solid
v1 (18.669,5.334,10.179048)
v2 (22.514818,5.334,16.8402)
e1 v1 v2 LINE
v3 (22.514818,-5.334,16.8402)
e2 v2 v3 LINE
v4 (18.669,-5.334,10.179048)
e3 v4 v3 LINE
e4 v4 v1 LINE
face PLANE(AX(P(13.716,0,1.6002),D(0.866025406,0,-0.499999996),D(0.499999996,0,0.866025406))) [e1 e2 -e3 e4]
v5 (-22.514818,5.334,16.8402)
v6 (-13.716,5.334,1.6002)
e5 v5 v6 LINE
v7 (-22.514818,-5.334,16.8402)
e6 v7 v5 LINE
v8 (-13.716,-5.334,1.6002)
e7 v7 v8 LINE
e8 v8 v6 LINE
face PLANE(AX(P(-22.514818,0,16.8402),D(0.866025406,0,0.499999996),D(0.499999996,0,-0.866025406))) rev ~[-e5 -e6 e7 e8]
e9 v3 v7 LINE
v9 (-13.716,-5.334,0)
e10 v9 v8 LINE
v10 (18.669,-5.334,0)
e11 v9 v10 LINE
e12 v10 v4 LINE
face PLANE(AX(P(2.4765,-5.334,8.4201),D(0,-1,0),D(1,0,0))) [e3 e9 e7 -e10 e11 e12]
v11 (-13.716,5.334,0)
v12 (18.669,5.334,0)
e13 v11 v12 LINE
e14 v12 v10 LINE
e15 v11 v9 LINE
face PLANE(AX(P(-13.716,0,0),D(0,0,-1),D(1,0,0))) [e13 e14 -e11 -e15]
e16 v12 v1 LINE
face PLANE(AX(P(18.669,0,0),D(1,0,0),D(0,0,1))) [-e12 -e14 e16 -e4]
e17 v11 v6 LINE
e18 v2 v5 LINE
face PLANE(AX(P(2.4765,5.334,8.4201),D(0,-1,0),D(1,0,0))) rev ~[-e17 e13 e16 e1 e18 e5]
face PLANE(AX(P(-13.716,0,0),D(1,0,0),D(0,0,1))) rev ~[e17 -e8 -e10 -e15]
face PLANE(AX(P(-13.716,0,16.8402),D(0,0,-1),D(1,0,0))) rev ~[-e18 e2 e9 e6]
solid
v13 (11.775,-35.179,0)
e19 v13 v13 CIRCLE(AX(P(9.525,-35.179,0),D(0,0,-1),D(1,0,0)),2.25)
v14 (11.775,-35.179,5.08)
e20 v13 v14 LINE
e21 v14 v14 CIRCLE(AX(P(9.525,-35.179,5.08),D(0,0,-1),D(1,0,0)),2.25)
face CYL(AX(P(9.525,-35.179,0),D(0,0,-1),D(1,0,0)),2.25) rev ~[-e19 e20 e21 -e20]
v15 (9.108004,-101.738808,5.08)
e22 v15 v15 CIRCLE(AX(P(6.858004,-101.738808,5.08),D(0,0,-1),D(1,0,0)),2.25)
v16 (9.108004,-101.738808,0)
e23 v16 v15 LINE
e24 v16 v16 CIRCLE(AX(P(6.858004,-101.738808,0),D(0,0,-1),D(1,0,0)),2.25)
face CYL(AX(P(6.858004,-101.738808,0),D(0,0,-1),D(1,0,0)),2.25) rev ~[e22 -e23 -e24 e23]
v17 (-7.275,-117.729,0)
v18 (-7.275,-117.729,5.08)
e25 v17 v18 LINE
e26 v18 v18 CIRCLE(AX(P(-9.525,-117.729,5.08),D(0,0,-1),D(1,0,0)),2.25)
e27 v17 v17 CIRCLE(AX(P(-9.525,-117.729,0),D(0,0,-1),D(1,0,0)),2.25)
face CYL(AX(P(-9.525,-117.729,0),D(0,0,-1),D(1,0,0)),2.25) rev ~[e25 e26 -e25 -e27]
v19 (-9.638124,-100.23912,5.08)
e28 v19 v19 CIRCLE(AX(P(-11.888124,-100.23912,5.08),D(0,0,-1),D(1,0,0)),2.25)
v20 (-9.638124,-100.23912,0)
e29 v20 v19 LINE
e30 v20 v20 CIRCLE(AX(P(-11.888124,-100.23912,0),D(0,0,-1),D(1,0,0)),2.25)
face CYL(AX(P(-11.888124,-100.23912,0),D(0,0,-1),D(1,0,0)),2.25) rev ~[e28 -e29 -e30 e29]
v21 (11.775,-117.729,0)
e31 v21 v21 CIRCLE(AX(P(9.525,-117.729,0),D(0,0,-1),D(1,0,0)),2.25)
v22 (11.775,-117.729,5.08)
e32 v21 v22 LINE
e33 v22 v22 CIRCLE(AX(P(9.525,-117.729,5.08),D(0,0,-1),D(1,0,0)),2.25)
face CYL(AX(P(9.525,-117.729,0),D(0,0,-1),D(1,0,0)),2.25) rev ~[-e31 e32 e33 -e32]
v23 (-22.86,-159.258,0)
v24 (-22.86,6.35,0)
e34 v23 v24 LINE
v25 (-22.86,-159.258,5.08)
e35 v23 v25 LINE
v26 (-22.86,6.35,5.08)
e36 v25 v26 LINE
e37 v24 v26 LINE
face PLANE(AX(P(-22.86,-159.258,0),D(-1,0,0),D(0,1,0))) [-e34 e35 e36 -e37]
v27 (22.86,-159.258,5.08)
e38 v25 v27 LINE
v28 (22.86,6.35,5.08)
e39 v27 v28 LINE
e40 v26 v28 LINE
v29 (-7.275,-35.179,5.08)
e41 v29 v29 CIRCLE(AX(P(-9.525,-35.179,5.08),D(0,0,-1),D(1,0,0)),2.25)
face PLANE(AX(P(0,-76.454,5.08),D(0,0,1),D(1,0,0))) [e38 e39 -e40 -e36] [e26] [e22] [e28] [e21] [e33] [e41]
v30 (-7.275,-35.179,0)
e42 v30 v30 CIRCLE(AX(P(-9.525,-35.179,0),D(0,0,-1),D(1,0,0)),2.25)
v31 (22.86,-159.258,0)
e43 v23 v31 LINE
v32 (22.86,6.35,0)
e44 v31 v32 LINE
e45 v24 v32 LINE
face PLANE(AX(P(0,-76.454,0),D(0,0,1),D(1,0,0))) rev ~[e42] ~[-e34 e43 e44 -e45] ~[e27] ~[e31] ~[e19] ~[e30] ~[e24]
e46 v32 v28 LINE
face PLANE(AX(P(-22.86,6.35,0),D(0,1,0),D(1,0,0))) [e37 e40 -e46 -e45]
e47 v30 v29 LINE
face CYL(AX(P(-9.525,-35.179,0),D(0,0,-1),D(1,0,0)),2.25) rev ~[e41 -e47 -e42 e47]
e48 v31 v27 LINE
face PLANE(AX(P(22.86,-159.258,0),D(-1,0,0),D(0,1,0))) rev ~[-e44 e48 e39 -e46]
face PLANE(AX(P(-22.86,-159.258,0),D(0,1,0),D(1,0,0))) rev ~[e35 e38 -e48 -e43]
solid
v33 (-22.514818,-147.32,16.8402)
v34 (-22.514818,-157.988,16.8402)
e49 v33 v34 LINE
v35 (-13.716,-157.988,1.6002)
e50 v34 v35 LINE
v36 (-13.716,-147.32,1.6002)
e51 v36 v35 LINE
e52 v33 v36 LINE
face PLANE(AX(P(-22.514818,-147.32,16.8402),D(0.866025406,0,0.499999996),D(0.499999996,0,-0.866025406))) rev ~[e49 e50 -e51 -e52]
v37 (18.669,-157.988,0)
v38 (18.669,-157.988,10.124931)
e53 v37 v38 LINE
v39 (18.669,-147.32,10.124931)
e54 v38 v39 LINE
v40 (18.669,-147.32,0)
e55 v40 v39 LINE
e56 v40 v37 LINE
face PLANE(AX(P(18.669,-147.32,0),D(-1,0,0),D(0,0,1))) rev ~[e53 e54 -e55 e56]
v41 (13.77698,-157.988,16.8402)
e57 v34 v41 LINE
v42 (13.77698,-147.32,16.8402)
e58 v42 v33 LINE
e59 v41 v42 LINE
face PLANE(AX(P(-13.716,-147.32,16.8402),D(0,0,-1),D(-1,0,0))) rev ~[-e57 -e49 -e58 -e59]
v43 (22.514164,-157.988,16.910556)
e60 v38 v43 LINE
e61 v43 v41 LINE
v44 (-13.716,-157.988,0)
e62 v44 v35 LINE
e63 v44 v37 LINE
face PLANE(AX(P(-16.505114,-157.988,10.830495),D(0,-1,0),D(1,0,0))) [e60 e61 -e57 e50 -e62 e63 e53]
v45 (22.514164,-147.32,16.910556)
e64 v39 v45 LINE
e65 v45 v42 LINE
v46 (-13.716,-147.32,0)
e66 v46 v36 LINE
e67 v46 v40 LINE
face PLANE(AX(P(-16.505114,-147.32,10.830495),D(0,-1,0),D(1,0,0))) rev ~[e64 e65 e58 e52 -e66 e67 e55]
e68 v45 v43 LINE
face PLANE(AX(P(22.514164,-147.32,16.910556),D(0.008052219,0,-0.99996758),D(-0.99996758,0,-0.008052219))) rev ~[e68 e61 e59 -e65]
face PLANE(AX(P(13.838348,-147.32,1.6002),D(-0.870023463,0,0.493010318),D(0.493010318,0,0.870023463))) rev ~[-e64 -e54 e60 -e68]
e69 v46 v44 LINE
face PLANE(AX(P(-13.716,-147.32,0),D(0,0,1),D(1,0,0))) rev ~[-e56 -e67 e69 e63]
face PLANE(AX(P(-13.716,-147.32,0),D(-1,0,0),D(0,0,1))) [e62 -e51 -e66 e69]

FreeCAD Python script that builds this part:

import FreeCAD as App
import Part
import Sketcher
from FreeCAD import Vector
Q = App.Units.Quantity

doc = App.newDocument("Part")
body = doc.addObject("PartDesign::Body", "Body")

# Sketch on XY plane
sketch1 = body.newObject("Sketcher::SketchObject", "Sketch")
sketch1.AttachmentSupport = (doc.getObject("XY_Plane"), [""])
sketch1.MapMode = "FlatFace"
sketch1.addGeometry([
    Part.LineSegment(Vector(-23, 6, 0), Vector(-23, -159, 0)),
    Part.LineSegment(Vector(-23, -159, 0), Vector(23, -159, 0)),
    Part.LineSegment(Vector(23, -159, 0), Vector(23, 6, 0)),
    Part.LineSegment(Vector(23, 6, 0), Vector(-23, 6, 0)),
], False)
sketch1.addConstraint([
    Sketcher.Constraint("Coincident", 0, 2, 1, 1),
    Sketcher.Constraint("Coincident", 1, 2, 2, 1),
    Sketcher.Constraint("Coincident", 2, 2, 3, 1),
    Sketcher.Constraint("Coincident", 3, 2, 0, 1),
    Sketcher.Constraint("Vertical", 0),
    Sketcher.Constraint("Horizontal", 1),
    Sketcher.Constraint("Vertical", 2),
    Sketcher.Constraint("Horizontal", 3),
    Sketcher.Constraint("DistanceX", 1, 1, 1, 2, Q("1.8 in")),
    Sketcher.Constraint("DistanceY", 0, 2, 0, 1, Q("6.52 in")),
    Sketcher.Constraint("DistanceX", 0, 2, -1, 1, Q("0.9 in")),
    Sketcher.Constraint("DistanceY", 0, 2, -1, 1, Q("6.27 in")),
])
pad1 = body.newObject("PartDesign::Pad", "Pad")
pad1.Profile = sketch1
pad1.Length = Q("0.2 in")

# Sketch on XY plane
sketch2 = body.newObject("Sketcher::SketchObject", "Sketch001")
sketch2.AttachmentSupport = (doc.getObject("XY_Plane"), [""])
sketch2.MapMode = "FlatFace"
sketch2.addGeometry([
    Part.Circle(Vector(-9.5, -117.7, 0), Vector(0, 0, 1), 2.2),
    Part.Circle(Vector(-9.5, -35.2, 0), Vector(0, 0, 1), 2.2),
    Part.Circle(Vector(9.5, -117.7, 0), Vector(0, 0, 1), 2.2),
    Part.Circle(Vector(9.5, -35.2, 0), Vector(0, 0, 1), 2.2),
], False)
sketch2.addConstraint([
    Sketcher.Constraint("Equal", 0, 1),
    Sketcher.Constraint("Equal", 1, 2),
    Sketcher.Constraint("Equal", 2, 3),
    Sketcher.Constraint("Symmetric", 0, 3, 2, 3, -2),
    Sketcher.Constraint("Symmetric", 1, 3, 3, 3, -2),
    Sketcher.Constraint("Vertical", 0, 3, 1, 3),
    Sketcher.Constraint("Diameter", 0, 4.5),
    Sketcher.Constraint("DistanceY", 0, 3, 1, 3, Q("3.25 in")),
    Sketcher.Constraint("DistanceX", 0, 3, 2, 3, Q("0.75 in")),
    Sketcher.Constraint("DistanceY", 0, 3, -1, 1, Q("4.635 in")),
])
pocket1 = body.newObject("PartDesign::Pocket", "Pocket")
pocket1.Profile = sketch2
pocket1.Length = Q("0.984 in")
pocket1.Reversed = True

# Sketch on XY plane
sketch3 = body.newObject("Sketcher::SketchObject", "Sketch002")
sketch3.AttachmentSupport = (doc.getObject("XY_Plane"), [""])
sketch3.MapMode = "FlatFace"
sketch3.addGeometry([
    Part.Circle(Vector(-11.9, -100.2, 0), Vector(0, 0, 1), 2.2),
    Part.Circle(Vector(6.9, -101.7, 0), Vector(0, 0, 1), 2.2),
], False)
sketch3.addConstraint([
    Sketcher.Constraint("Equal", 0, 1),
    Sketcher.Constraint("Diameter", 0, 4.5),
    Sketcher.Constraint("DistanceX", -1, 1, 1, 3, Q("0.2700002 in")),
    Sketcher.Constraint("DistanceY", 0, 3, -1, 1, 100.23912),
    Sketcher.Constraint("DistanceY", 1, 3, -1, 1, 101.738808),
    Sketcher.Constraint("DistanceX", 0, 3, -1, 1, 11.888124),
])
pocket2 = body.newObject("PartDesign::Pocket", "Pocket001")
pocket2.Profile = sketch3
pocket2.Length = Q("0.984 in")
pocket2.Reversed = True
body2 = doc.addObject("PartDesign::Body", "Body001")

# Sketch on XZ plane
sketch4 = body2.newObject("Sketcher::SketchObject", "Sketch003")
sketch4.AttachmentSupport = (doc.getObject("XZ_Plane001"), [""])
sketch4.MapMode = "FlatFace"
sketch4.addGeometry([
    Part.LineSegment(Vector(-14, 17, 0), Vector(-14, 0, 0)),
    Part.LineSegment(Vector(-14, 0, 0), Vector(19, 0, 0)),
    Part.LineSegment(Vector(19, 0, 0), Vector(19, 17, 0)),
    Part.LineSegment(Vector(19, 17, 0), Vector(-14, 17, 0)),
], False)
sketch4.addConstraint([
    Sketcher.Constraint("Coincident", 0, 2, 1, 1),
    Sketcher.Constraint("Coincident", 1, 2, 2, 1),
    Sketcher.Constraint("Coincident", 2, 2, 3, 1),
    Sketcher.Constraint("Coincident", 3, 2, 0, 1),
    Sketcher.Constraint("Vertical", 0),
    Sketcher.Constraint("Horizontal", 1),
    Sketcher.Constraint("Vertical", 2),
    Sketcher.Constraint("Horizontal", 3),
    Sketcher.Constraint("PointOnObject", 0, 2, -1),
    Sketcher.Constraint("DistanceX", 1, 1, 1, 2, Q("1.275 in")),
    Sketcher.Constraint("DistanceY", 0, 2, 0, 1, Q("0.663 in")),
    Sketcher.Constraint("DistanceX", 0, 2, -1, 1, Q("0.54 in")),
])
pad2 = body2.newObject("PartDesign::Pad", "Pad001")
pad2.Profile = sketch4
pad2.Length = Q("0.42 in")
pad2.Midplane = True

# Sketch on XZ plane
sketch5 = body2.newObject("Sketcher::SketchObject", "Sketch004")
sketch5.AttachmentSupport = (doc.getObject("XZ_Plane001"), [""])
sketch5.MapMode = "FlatFace"
sketch5.addGeometry([
    Part.LineSegment(Vector(-14, 2, 0), Vector(-14, 17, 0)),  # 0
    Part.LineSegment(Vector(-14, 17, 0), Vector(-23, 17, 0)),  # 1
    Part.LineSegment(Vector(-23, 17, 0), Vector(-14, 2, 0)),  # 2
    Part.LineSegment(Vector(14, 2, 0), Vector(23, 17, 0)),  # 3
    Part.LineSegment(Vector(23, 17, 0), Vector(14, 17, 0)),  # 4
    Part.LineSegment(Vector(14, 17, 0), Vector(14, 2, 0)),  # 5
], False)
sketch5.addConstraint([
    Sketcher.Constraint("Coincident", 0, 2, 1, 1),
    Sketcher.Constraint("Coincident", 1, 2, 2, 1),
    Sketcher.Constraint("Coincident", 2, 2, 0, 1),
    Sketcher.Constraint("Coincident", 3, 2, 4, 1),
    Sketcher.Constraint("Coincident", 4, 2, 5, 1),
    Sketcher.Constraint("Coincident", 5, 2, 3, 1),
    Sketcher.Constraint("Vertical", 0),
    Sketcher.Constraint("Horizontal", 1),
    Sketcher.Constraint("Horizontal", 4),
    Sketcher.Constraint("Vertical", 5),
    Sketcher.Constraint("Symmetric", 1, 2, 3, 2, -2),
    Sketcher.Constraint("Symmetric", 2, 2, 5, 2, -2),
    Sketcher.Constraint("DistanceY", 0, 1, 0, 2, Q("0.6 in")),
    Sketcher.Constraint("Angle", 2, Q("-60 deg")),
    Sketcher.Constraint("DistanceX", 0, 2, -1, 1, Q("0.54 in")),
    Sketcher.Constraint("DistanceY", -1, 1, 0, 2, Q("0.663 in")),
])
pad3 = body2.newObject("PartDesign::Pad", "Pad002")
pad3.Profile = sketch5
pad3.Length = Q("0.42 in")
pad3.Midplane = True
body3 = doc.addObject("PartDesign::Body", "Body002")

# Sketch on XZ plane
sketch6 = body3.newObject("Sketcher::SketchObject", "Sketch005")
sketch6.AttachmentSupport = (doc.getObject("XZ_Plane002"), [""])
sketch6.MapMode = "FlatFace"
sketch6.AttachmentOffset = App.Placement(Vector(0, 0, 5.8 * 25.4), App.Rotation())
sketch6.addGeometry([
    Part.LineSegment(Vector(-14, 17, 0), Vector(-14, 0, 0)),
    Part.LineSegment(Vector(-14, 0, 0), Vector(19, 0, 0)),
    Part.LineSegment(Vector(19, 0, 0), Vector(19, 17, 0)),
    Part.LineSegment(Vector(19, 17, 0), Vector(-14, 17, 0)),
], False)
sketch6.addConstraint([
    Sketcher.Constraint("Coincident", 0, 2, 1, 1),
    Sketcher.Constraint("Coincident", 1, 2, 2, 1),
    Sketcher.Constraint("Coincident", 2, 2, 3, 1),
    Sketcher.Constraint("Coincident", 3, 2, 0, 1),
    Sketcher.Constraint("Vertical", 0),
    Sketcher.Constraint("Horizontal", 1),
    Sketcher.Constraint("Vertical", 2),
    Sketcher.Constraint("Horizontal", 3),
    Sketcher.Constraint("PointOnObject", 0, 2, -1),
    Sketcher.Constraint("DistanceX", 1, 1, 1, 2, Q("1.275 in")),
    Sketcher.Constraint("DistanceY", 0, 2, 0, 1, Q("0.663 in")),
    Sketcher.Constraint("DistanceX", 0, 2, -1, 1, Q("0.54 in")),
])
pad4 = body3.newObject("PartDesign::Pad", "Pad003")
pad4.Profile = sketch6
pad4.Length = Q("0.42 in")

# Sketch on XZ plane
sketch7 = body3.newObject("Sketcher::SketchObject", "Sketch006")
sketch7.AttachmentSupport = (doc.getObject("XZ_Plane002"), [""])
sketch7.MapMode = "FlatFace"
sketch7.AttachmentOffset = App.Placement(Vector(0, 0, 5.8 * 25.4), App.Rotation())
sketch7.addGeometry([
    Part.LineSegment(Vector(-14, 2, 0), Vector(-14, 17, 0)),  # 0
    Part.LineSegment(Vector(-14, 17, 0), Vector(-23, 17, 0)),  # 1
    Part.LineSegment(Vector(-23, 17, 0), Vector(-14, 2, 0)),  # 2
    Part.LineSegment(Vector(14, 2, 0), Vector(23, 17, 0)),  # 3
    Part.LineSegment(Vector(23, 17, 0), Vector(14, 17, 0)),  # 4
    Part.LineSegment(Vector(14, 17, 0), Vector(14, 2, 0)),  # 5
], False)
sketch7.addConstraint([
    Sketcher.Constraint("Coincident", 0, 2, 1, 1),
    Sketcher.Constraint("Coincident", 1, 2, 2, 1),
    Sketcher.Constraint("Coincident", 2, 2, 0, 1),
    Sketcher.Constraint("Coincident", 3, 2, 4, 1),
    Sketcher.Constraint("Coincident", 4, 2, 5, 1),
    Sketcher.Constraint("Coincident", 5, 2, 3, 1),
    Sketcher.Constraint("Vertical", 0),
    Sketcher.Constraint("Horizontal", 1),
    Sketcher.Constraint("Perpendicular", 4, 5),
    Sketcher.Constraint("Horizontal", 2, 2, 5, 2),
    Sketcher.Constraint("Equal", 2, 3),
    Sketcher.Constraint("DistanceY", 0, 1, 0, 2, Q("0.6 in")),
    Sketcher.Constraint("Angle", 2, Q("-60 deg")),
    Sketcher.Constraint("Distance", 5, Q("0.6 in")),
    Sketcher.Constraint("DistanceX", 0, 2, -1, 1, Q("0.54 in")),
    Sketcher.Constraint("DistanceY", -1, 1, 0, 2, Q("0.663 in")),
    Sketcher.Constraint("DistanceX", -1, 1, 4, 2, 13.715632),
    Sketcher.Constraint("DistanceY", 4, 2, 3, 2, 0.07085),
])
pad5 = body3.newObject("PartDesign::Pad", "Pad004")
pad5.Profile = sketch7
pad5.Length = Q("0.42 in")

doc.recompute()
